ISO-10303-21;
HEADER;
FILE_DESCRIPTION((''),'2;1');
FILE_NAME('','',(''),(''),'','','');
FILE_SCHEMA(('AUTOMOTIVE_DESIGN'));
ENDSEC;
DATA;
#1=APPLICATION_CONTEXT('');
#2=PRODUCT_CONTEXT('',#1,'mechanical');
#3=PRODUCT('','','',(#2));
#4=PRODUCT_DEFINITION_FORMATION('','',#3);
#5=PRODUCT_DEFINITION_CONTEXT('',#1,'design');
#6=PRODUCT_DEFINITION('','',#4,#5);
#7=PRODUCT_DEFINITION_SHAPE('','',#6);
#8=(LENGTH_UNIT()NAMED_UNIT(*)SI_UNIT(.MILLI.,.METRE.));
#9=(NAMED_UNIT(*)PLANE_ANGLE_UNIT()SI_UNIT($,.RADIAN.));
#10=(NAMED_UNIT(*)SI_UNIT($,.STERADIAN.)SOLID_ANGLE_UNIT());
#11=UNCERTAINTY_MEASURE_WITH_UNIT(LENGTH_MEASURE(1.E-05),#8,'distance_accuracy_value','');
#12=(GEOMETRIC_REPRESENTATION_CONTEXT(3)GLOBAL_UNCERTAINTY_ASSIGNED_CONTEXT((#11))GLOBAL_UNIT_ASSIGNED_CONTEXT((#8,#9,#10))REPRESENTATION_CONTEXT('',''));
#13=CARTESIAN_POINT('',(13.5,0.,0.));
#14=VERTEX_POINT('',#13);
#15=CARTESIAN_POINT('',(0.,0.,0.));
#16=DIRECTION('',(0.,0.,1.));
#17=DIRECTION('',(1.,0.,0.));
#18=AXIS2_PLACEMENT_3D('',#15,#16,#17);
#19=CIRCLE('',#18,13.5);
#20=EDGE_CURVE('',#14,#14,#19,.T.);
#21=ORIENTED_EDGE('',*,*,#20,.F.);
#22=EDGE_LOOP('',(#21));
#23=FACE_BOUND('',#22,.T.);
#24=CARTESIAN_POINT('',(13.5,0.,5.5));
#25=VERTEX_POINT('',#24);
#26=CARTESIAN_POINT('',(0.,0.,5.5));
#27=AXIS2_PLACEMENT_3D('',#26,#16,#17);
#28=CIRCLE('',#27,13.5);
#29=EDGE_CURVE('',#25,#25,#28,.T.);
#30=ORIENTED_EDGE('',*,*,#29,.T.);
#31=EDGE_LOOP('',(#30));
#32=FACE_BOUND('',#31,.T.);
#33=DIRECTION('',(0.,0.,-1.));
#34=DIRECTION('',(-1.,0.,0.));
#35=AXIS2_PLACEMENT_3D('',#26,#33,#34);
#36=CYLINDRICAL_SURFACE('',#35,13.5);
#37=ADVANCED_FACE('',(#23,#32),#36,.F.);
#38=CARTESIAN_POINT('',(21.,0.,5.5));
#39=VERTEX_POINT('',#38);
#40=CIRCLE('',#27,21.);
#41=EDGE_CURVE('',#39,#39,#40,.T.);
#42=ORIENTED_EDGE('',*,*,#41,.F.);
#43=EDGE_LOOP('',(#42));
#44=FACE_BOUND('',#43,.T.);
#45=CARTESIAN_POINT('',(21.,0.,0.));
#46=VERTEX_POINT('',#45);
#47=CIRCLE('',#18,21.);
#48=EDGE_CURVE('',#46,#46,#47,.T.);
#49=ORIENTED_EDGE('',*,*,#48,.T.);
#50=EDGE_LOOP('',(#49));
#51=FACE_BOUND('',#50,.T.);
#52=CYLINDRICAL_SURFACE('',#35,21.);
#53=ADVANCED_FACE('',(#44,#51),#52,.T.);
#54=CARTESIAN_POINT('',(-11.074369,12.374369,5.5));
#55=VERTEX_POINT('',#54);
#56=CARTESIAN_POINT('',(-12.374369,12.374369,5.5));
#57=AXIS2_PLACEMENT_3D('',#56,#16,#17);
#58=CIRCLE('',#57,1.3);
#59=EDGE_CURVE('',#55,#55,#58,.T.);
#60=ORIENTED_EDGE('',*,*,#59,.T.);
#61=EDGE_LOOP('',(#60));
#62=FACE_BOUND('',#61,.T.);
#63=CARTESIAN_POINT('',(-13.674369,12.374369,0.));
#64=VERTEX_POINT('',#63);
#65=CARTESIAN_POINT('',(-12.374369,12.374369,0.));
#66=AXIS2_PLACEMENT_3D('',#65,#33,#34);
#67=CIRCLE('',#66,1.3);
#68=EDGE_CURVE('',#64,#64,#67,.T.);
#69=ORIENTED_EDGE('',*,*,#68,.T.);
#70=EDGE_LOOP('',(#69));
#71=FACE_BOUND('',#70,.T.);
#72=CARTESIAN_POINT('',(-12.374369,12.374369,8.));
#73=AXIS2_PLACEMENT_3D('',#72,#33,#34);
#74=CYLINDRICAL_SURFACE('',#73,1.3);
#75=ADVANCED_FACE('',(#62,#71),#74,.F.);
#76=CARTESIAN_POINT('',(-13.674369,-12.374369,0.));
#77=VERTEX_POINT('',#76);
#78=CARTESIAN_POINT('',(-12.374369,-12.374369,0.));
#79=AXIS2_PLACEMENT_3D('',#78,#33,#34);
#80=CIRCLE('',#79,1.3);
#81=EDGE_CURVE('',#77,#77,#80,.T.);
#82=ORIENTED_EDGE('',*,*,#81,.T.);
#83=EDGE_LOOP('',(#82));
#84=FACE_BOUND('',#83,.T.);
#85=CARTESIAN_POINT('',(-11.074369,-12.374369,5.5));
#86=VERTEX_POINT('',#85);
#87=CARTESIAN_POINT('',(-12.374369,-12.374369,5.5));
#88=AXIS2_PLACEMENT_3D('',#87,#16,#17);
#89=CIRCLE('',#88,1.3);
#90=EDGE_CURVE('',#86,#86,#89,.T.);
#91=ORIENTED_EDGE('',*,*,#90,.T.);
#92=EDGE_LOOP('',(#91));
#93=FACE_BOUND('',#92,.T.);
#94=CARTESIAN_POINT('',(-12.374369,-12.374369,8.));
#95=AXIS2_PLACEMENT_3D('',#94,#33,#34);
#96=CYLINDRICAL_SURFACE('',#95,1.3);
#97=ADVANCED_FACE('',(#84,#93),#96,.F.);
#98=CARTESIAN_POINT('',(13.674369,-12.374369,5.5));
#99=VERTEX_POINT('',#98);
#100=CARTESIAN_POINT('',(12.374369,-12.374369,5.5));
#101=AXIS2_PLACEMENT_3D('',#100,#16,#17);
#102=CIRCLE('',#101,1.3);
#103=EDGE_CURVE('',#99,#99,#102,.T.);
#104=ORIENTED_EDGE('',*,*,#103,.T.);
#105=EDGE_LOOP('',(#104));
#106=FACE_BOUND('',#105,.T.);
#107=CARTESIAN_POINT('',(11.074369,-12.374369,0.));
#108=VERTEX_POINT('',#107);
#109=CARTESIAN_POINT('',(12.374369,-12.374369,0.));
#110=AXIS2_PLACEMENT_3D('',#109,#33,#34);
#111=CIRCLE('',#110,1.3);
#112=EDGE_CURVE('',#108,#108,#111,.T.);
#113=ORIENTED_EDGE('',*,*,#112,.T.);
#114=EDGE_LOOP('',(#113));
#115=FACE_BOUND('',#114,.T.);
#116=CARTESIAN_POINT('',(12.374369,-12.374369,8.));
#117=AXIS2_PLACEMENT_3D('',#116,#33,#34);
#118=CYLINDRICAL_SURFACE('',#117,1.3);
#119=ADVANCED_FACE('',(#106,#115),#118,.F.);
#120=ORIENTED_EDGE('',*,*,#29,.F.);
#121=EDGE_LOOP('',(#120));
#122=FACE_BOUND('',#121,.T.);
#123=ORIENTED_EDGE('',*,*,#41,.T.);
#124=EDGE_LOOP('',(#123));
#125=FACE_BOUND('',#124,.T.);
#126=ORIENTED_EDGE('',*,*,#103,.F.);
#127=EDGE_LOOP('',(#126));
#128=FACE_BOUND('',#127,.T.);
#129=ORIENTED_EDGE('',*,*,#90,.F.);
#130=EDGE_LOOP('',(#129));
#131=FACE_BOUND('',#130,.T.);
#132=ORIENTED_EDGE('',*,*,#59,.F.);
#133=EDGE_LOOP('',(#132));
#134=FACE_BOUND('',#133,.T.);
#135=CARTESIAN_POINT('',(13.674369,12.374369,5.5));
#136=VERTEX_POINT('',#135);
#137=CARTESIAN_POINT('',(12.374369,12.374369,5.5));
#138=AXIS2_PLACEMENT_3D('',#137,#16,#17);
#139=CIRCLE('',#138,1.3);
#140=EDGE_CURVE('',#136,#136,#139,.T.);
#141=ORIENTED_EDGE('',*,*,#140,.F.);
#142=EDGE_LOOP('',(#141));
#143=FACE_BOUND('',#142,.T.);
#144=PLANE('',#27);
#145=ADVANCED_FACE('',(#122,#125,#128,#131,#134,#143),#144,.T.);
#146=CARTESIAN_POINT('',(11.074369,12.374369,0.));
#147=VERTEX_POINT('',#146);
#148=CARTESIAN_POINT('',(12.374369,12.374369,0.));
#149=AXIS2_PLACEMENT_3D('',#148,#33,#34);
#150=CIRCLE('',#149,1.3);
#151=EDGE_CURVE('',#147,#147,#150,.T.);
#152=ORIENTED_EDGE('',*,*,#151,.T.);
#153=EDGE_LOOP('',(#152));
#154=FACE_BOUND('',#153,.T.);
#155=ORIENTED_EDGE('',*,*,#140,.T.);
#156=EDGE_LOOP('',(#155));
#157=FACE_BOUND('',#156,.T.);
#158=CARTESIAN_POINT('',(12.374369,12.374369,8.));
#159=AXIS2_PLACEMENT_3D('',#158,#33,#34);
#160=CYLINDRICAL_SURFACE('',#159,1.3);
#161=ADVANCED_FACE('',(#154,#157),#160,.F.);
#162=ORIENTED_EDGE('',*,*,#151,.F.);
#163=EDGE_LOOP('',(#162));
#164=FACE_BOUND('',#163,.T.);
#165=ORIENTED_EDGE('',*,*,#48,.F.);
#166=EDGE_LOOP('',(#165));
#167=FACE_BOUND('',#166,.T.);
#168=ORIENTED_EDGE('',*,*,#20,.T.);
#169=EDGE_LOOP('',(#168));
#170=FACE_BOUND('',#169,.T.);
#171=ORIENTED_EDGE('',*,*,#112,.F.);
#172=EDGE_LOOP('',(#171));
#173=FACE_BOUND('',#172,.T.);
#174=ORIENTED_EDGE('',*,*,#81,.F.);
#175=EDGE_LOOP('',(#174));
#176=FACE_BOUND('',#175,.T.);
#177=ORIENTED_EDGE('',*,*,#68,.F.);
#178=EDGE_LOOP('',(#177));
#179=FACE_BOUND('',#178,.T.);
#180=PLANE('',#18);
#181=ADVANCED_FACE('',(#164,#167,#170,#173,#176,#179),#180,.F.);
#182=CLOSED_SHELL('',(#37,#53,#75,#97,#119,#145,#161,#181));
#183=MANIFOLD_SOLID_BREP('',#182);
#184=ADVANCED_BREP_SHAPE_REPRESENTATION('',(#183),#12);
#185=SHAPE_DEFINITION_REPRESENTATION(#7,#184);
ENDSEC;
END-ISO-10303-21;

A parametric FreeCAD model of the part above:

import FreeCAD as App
import Part
import Sketcher

V = App.Vector
Q = App.Units.Quantity

doc = App.newDocument("Part")
body = doc.addObject("PartDesign::Body", "Body")

# Sketch on XY plane
sketch1 = body.newObject("Sketcher::SketchObject", "Sketch")
sketch1.AttachmentSupport = (doc.getObject("XY_Plane"), [""])
sketch1.MapMode = "FlatFace"
sketch1.addGeometry(Part.Circle(V(0, 0, 0), V(0, 0, 1), 21), False)
sketch1.addGeometry(Part.Circle(V(0, 0, 0), V(0, 0, 1), 13.5), False)
sketch1.addConstraint(Sketcher.Constraint("Coincident", 0, 3, -1, 1))
sketch1.addConstraint(Sketcher.Constraint("Coincident", 1, 3, -1, 1))
sketch1.addConstraint(Sketcher.Constraint("Diameter", 0, Q("42 mm")))
sketch1.addConstraint(Sketcher.Constraint("Diameter", 1, Q("27 mm")))
pad1 = body.newObject("PartDesign::Pad", "Pad")
pad1.Profile = sketch1
pad1.Length = 5.5

# Sketch on XY plane
sketch2 = body.newObject("Sketcher::SketchObject", "Sketch001")
sketch2.AttachmentSupport = (doc.getObject("XY_Plane"), [""])
sketch2.MapMode = "FlatFace"
sketch2.addGeometry(Part.Circle(V(12.374369, 12.374369, 0), V(0, 0, 1), 1.3), False)
sketch2.addGeometry(Part.Circle(V(-12.374369, 12.374369, 0), V(0, 0, 1), 1.3), False)
sketch2.addGeometry(Part.Circle(V(-12.374369, -12.374369, 0), V(0, 0, 1), 1.3), False)
sketch2.addGeometry(Part.Circle(V(12.374369, -12.374369, 0), V(0, 0, 1), 1.3), False)
sketch2.addConstraint(Sketcher.Constraint("Equal", 0, 1))
sketch2.addConstraint(Sketcher.Constraint("Equal", 1, 2))
sketch2.addConstraint(Sketcher.Constraint("Equal", 2, 3))
sketch2.addConstraint(Sketcher.Constraint("Symmetric", 0, 3, 2, 3, -1, 1))
sketch2.addConstraint(Sketcher.Constraint("Symmetric", 1, 3, 3, 3, -1, 1))
sketch2.addConstraint(Sketcher.Constraint("Symmetric", 0, 3, 1, 3, -2))
sketch2.addConstraint(Sketcher.Constraint("Diameter", 0, Q("2.6 mm")))
sketch2.addConstraint(Sketcher.Constraint("DistanceX", -1, 1, 0, 3, Q("12.374369 mm")))
sketch2.addConstraint(Sketcher.Constraint("DistanceY", -1, 1, 0, 3, Q("12.374369 mm")))
pocket1 = body.newObject("PartDesign::Pocket", "Pocket")
pocket1.Profile = sketch2
pocket1.Length = 8
pocket1.Reversed = True

doc.recompute()
